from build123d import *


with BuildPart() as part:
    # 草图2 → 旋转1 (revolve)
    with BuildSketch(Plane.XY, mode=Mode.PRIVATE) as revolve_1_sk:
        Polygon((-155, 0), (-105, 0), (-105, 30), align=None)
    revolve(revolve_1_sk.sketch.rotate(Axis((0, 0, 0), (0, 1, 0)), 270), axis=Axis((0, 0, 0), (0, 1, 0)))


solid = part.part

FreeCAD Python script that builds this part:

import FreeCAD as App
import Part
import Sketcher

V = App.Vector


def add_polygon(sketch, points):
    """Adds a closed chain of lines whose ends are joined by coincident constraints."""
    first, n = sketch.GeometryCount, len(points)
    for a, b in zip(points, points[1:] + points[:1]):
        sketch.addGeometry(Part.LineSegment(App.Vector(*a, 0), App.Vector(*b, 0)), False)
    for i in range(n):
        sketch.addConstraint(Sketcher.Constraint("Coincident", first + i, 2, first + (i + 1) % n, 1))

doc = App.newDocument("Part")
body = doc.addObject("PartDesign::Body", "Body")

# Sketch on XY plane
sketch1 = body.newObject("Sketcher::SketchObject", "Sketch")
sketch1.AttachmentSupport = (doc.getObject("XY_Plane"), [""])
sketch1.MapMode = "FlatFace"
add_polygon(sketch1, [(-155, 0), (-105, 0), (-105, 30)])  # lines 0-2
sketch1.addConstraint(Sketcher.Constraint("Horizontal", 0))
sketch1.addConstraint(Sketcher.Constraint("Vertical", 1))
sketch1.addConstraint(Sketcher.Constraint("PointOnObject", 0, 2, -1))
sketch1.addConstraint(Sketcher.Constraint("DistanceX", 0, 1, 0, 2, 50.0))
sketch1.addConstraint(Sketcher.Constraint("DistanceY", 1, 1, 1, 2, 30.0))
sketch1.addConstraint(Sketcher.Constraint("DistanceX", 0, 2, -1, 1, 105.0))
revolution = body.newObject("PartDesign::Revolution", "Revolution")
revolution.Profile = sketch1
revolution.ReferenceAxis = (sketch1, ["V_Axis"])
revolution.Angle = 360

doc.recompute()
